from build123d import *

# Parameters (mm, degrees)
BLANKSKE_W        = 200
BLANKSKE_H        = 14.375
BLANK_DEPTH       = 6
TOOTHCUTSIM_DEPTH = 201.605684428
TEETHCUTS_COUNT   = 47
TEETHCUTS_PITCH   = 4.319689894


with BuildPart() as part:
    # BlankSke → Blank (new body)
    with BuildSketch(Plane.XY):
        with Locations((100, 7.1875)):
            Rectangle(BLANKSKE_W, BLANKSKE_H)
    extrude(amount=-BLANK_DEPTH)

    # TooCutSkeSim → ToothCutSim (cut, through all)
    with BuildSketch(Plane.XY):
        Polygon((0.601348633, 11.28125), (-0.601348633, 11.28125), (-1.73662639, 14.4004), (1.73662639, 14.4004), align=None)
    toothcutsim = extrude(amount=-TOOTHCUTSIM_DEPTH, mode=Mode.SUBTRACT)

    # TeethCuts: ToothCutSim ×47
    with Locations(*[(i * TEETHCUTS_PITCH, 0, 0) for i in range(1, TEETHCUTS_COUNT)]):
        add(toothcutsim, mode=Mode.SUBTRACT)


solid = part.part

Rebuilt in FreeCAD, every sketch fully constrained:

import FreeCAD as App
import Part
import Sketcher

V = App.Vector
Q = App.Units.Quantity

doc = App.newDocument("Part")
body = doc.addObject("PartDesign::Body", "Body")

# Sketch on XY plane
sketch1 = body.newObject("Sketcher::SketchObject", "Sketch")
sketch1.AttachmentSupport = (doc.getObject("XY_Plane"), [""])
sketch1.MapMode = "FlatFace"
sketch1.addGeometry([
    Part.LineSegment(V(0, 14, 0), V(0, 0, 0)),
    Part.LineSegment(V(0, 0, 0), V(200, 0, 0)),
    Part.LineSegment(V(200, 0, 0), V(200, 14, 0)),
    Part.LineSegment(V(200, 14, 0), V(0, 14, 0)),
], False)
sketch1.addConstraint([
    Sketcher.Constraint("Coincident", 0, 2, 1, 1),
    Sketcher.Constraint("Coincident", 1, 2, 2, 1),
    Sketcher.Constraint("Coincident", 2, 2, 3, 1),
    Sketcher.Constraint("Coincident", 3, 2, 0, 1),
    Sketcher.Constraint("Vertical", 0),
    Sketcher.Constraint("Horizontal", 1),
    Sketcher.Constraint("Vertical", 2),
    Sketcher.Constraint("Horizontal", 3),
    Sketcher.Constraint("Coincident", 0, 2, -1, 1),
    Sketcher.Constraint("DistanceX", 1, 1, 1, 2, 200.0),
    Sketcher.Constraint("DistanceY", 0, 2, 0, 1, 14.375),
])
pad1 = body.newObject("PartDesign::Pad", "Pad")
pad1.Profile = sketch1
pad1.Length = 6
pad1.Reversed = True

# Sketch on XY plane
sketch2 = body.newObject("Sketcher::SketchObject", "Sketch001")
sketch2.AttachmentSupport = (doc.getObject("XY_Plane"), [""])
sketch2.MapMode = "FlatFace"
sketch2.addGeometry([
    Part.LineSegment(V(-0.6, 11.3, 0), V(0.6, 11.3, 0)),
    Part.LineSegment(V(0.6, 11.3, 0), V(1.7, 14.4, 0)),
    Part.LineSegment(V(1.7, 14.4, 0), V(-1.7, 14.4, 0)),
    Part.LineSegment(V(-1.7, 14.4, 0), V(-0.6, 11.3, 0)),
], False)
sketch2.addConstraint([
    Sketcher.Constraint("Coincident", 0, 2, 1, 1),
    Sketcher.Constraint("Coincident", 1, 2, 2, 1),
    Sketcher.Constraint("Coincident", 2, 2, 3, 1),
    Sketcher.Constraint("Coincident", 3, 2, 0, 1),
    Sketcher.Constraint("Horizontal", 0),
    Sketcher.Constraint("Horizontal", 2),
    Sketcher.Constraint("Equal", 1, 3),
    Sketcher.Constraint("Angle", 1, Q("70 deg")),
    Sketcher.Constraint("DistanceY", -1, 1, 1, 2, 14.4004),
    Sketcher.Constraint("Distance", 1, 3.31933),
    Sketcher.Constraint("DistanceX", 0, 1, 0, 2, 1.202697),
    Sketcher.Constraint("DistanceX", -1, 1, 0, 2, 0.601349),
])
pocket1 = body.newObject("PartDesign::Pocket", "Pocket")
pocket1.Profile = sketch2
pocket1.Type = "ThroughAll"
doc.recompute()

linearpattern = body.newObject("PartDesign::LinearPattern", "LinearPattern")
linearpattern.Originals = [pocket1]
linearpattern.Direction = (doc.getObject("X_Axis"), [""])
linearpattern.Mode = "offset"
linearpattern.Offset = 4.31969
linearpattern.Occurrences = 47
body.Tip = linearpattern

doc.recompute()
